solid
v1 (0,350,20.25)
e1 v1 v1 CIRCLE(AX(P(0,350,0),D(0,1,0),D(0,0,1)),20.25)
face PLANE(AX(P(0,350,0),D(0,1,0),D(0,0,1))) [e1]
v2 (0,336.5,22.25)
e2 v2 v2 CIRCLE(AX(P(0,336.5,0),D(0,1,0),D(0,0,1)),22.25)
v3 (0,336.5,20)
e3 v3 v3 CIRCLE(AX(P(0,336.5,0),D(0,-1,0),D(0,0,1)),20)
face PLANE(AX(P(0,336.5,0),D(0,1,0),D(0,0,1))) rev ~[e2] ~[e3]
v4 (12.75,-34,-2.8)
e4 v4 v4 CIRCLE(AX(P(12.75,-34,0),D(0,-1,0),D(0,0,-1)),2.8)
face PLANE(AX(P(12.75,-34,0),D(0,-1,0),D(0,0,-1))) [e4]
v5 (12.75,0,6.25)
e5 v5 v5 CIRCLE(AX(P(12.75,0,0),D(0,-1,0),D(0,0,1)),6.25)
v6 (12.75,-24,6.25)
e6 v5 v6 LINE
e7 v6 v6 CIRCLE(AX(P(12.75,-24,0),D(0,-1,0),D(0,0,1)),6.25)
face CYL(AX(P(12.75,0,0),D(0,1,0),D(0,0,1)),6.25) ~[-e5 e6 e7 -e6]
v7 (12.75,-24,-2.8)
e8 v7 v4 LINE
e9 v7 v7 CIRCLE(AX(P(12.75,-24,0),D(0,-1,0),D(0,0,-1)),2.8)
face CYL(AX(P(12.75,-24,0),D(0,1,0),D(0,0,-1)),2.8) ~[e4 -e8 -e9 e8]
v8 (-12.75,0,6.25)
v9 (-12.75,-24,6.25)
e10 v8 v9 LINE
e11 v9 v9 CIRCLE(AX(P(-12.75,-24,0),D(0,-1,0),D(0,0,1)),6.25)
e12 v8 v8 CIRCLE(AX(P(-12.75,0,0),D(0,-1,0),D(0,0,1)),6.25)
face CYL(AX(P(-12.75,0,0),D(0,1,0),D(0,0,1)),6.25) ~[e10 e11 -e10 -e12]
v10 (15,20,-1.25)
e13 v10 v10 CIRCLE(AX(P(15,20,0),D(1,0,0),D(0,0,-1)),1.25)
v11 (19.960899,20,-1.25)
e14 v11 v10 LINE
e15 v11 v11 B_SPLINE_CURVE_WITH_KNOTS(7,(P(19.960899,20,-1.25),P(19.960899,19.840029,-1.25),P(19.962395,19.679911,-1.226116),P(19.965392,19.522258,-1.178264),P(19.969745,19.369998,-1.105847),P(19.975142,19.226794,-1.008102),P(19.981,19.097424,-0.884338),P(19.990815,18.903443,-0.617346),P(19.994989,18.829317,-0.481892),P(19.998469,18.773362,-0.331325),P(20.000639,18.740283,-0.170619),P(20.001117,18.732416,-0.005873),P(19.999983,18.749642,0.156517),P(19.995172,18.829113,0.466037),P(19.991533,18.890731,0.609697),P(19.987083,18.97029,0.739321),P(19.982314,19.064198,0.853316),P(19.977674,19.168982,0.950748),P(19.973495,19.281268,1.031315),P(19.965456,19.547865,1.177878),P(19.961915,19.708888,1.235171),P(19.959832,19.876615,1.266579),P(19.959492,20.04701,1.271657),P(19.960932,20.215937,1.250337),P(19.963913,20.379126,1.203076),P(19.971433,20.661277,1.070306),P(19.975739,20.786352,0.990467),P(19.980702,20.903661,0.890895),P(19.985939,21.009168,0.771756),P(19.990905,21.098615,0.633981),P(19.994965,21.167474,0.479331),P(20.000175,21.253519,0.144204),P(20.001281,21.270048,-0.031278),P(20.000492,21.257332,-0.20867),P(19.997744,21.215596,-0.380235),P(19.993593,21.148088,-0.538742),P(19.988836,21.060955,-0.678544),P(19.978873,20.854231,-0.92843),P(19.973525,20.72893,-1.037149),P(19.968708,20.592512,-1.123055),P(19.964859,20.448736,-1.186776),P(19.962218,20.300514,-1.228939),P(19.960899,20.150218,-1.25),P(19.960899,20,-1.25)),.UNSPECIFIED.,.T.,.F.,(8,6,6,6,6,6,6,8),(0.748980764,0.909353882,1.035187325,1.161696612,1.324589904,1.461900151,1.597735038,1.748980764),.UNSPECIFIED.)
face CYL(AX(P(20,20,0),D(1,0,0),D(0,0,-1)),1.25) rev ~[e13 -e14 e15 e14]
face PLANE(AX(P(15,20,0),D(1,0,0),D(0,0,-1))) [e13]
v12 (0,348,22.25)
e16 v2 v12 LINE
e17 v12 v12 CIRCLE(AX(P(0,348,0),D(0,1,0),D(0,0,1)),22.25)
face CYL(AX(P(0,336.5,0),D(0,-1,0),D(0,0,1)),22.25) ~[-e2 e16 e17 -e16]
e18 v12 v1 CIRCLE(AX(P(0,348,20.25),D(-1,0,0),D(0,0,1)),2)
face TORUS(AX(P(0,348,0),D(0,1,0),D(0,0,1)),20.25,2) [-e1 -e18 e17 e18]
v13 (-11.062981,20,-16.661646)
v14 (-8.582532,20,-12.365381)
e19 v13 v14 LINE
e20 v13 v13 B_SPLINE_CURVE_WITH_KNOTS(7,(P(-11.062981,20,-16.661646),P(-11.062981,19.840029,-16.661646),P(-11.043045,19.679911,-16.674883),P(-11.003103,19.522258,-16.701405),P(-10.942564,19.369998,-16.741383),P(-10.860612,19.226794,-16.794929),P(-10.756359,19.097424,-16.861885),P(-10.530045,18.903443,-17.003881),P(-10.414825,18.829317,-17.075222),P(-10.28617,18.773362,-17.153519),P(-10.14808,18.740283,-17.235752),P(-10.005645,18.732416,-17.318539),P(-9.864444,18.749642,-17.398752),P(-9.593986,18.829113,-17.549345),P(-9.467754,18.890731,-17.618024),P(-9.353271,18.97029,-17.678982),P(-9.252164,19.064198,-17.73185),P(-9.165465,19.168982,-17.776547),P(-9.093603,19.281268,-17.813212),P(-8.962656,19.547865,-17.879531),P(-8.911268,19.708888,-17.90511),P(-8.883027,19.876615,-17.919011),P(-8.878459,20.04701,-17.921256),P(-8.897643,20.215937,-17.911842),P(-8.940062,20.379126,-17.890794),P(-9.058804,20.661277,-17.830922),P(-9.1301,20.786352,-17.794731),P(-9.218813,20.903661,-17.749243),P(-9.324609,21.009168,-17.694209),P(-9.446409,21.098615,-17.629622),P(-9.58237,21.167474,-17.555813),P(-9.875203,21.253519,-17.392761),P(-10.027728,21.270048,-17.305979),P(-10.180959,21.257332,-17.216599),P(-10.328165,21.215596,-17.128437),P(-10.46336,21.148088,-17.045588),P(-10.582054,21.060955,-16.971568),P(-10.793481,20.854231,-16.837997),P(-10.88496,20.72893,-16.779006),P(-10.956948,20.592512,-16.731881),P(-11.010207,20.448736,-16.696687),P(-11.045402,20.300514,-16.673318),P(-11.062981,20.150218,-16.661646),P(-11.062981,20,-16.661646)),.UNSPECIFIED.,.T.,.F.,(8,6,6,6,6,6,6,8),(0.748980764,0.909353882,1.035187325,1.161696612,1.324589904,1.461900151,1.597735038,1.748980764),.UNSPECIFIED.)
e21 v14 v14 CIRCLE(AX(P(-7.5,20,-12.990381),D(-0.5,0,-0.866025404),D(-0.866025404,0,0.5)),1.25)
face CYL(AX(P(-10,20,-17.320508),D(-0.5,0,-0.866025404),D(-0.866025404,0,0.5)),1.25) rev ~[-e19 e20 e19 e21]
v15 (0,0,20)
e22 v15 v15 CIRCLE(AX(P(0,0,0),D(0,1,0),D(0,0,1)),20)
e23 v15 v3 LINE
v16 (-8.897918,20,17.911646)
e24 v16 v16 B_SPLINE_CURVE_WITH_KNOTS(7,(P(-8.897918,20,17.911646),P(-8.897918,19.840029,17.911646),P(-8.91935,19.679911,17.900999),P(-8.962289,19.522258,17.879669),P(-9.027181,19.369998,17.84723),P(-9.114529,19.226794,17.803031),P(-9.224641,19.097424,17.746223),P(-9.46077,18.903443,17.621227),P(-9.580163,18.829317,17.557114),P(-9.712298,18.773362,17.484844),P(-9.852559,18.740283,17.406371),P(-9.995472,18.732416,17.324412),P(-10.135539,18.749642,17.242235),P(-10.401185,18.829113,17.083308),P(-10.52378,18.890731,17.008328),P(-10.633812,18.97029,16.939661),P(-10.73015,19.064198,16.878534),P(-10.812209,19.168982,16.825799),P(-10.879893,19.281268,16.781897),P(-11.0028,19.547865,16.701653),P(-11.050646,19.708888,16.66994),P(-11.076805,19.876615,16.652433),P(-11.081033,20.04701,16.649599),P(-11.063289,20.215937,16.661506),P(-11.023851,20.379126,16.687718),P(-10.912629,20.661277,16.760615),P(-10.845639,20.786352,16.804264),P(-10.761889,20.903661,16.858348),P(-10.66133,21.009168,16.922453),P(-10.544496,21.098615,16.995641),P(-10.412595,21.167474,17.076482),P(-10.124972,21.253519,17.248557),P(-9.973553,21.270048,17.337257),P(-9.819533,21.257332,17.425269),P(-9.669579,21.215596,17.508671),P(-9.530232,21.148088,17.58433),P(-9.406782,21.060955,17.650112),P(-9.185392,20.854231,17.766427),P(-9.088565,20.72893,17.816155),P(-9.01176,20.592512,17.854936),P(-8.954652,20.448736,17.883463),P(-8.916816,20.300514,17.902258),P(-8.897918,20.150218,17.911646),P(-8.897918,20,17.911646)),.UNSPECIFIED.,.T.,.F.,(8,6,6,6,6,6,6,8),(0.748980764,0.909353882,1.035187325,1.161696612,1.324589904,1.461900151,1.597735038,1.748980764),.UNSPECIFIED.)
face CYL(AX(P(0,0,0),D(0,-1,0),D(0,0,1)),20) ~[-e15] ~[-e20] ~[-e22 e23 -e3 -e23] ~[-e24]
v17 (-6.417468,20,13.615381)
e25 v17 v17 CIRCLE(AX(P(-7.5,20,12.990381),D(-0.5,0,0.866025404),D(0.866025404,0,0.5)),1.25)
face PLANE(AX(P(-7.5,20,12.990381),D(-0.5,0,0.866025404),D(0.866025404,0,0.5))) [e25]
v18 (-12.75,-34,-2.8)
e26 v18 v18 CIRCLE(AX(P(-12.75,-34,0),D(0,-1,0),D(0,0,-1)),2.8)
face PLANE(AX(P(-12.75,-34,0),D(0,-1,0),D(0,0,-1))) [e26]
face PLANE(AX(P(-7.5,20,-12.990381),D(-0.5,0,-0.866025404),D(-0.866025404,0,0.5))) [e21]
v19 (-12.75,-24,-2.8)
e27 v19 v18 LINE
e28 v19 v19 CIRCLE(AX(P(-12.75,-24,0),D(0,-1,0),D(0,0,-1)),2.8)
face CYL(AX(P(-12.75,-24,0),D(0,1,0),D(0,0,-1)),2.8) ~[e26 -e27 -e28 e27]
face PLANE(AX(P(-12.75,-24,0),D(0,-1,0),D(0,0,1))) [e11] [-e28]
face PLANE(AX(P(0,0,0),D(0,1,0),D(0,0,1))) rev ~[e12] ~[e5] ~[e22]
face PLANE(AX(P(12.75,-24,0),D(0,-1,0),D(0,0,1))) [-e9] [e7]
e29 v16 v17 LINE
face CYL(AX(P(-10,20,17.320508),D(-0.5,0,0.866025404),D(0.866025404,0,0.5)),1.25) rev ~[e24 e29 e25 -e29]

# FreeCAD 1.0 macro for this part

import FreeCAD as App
import Part
import Sketcher

V = App.Vector


def edges_at(feature, points):
    """Names of the edges that pass closest to the given points."""
    edges = feature.Shape.Edges
    near = lambda p: min(range(len(edges)), key=lambda i: edges[i].distToShape(Part.Vertex(*p))[0])
    return sorted({f"Edge{near(p) + 1}" for p in points})

doc = App.newDocument("Part")
params = doc.addObject("Spreadsheet::Sheet", "Params")
for row, (alias, value) in enumerate([
    ("sketch1_diameter", "40 mm"),
    ("pad1_length", "345 mm"),
    ("sketch2_diameter", "44.5 mm"),
    ("pad2_length", "5 mm"),
    ("pad2_length2", "8.5 mm"),
    ("fillet_radius", "2 mm"),
    ("sketch3_diameter", "2.5 mm"),
    ("pocket1_length", "5 mm"),
    ("sketch4_diameter", "12.5 mm"),
    ("pad3_length", "24 mm"),
    ("sketch5_diameter", "5.6 mm"),
    ("pad4_length", "10 mm"),
], start=1):
    params.set(f"A{row}", alias)
    params.set(f"B{row}", "=" + value)
    params.setAlias(f"B{row}", alias)

body = doc.addObject("PartDesign::Body", "Body")

# Sketch on XZ plane
sketch1 = doc.addObject("Sketcher::SketchObject", "Sketch")
body.addObject(sketch1)
sketch1.AttachmentSupport = (doc.XZ_Plane, [""])
sketch1.MapMode = "FlatFace"
sketch1.addGeometry(Part.Circle(V(0, 0, 0), V(0, 0, 1), 20), False)
sketch1.addConstraint(Sketcher.Constraint("Coincident", 0, 3, -1, 1))
sketch1.addConstraint(Sketcher.Constraint("Diameter", 0, 40.0))
sketch1.setExpression("Constraints[1]", "Params.sketch1_diameter")
pad1 = doc.addObject("PartDesign::Pad", "Pad")
body.addObject(pad1)
pad1.Profile = sketch1
pad1.setExpression("Length", "Params.pad1_length")
pad1.Reversed = True

# Sketch on XZ plane
sketch2 = doc.addObject("Sketcher::SketchObject", "Sketch001")
body.addObject(sketch2)
sketch2.AttachmentSupport = (doc.XZ_Plane, [""])
sketch2.MapMode = "FlatFace"
sketch2.AttachmentOffset = App.Placement(V(0, 0, -345), App.Rotation())
sketch2.addGeometry(Part.Circle(V(0, 0, 0), V(0, 0, 1), 22), False)
sketch2.addConstraint(Sketcher.Constraint("Coincident", 0, 3, -1, 1))
sketch2.addConstraint(Sketcher.Constraint("Diameter", 0, 44.5))
sketch2.setExpression("Constraints[1]", "Params.sketch2_diameter")
pad2 = doc.addObject("PartDesign::Pad", "Pad001")
body.addObject(pad2)
pad2.Profile = sketch2
pad2.Type = "TwoLengths"
pad2.setExpression("Length", "Params.pad2_length")
pad2.setExpression("Length2", "Params.pad2_length2")
pad2.Reversed = True
doc.recompute()

fillet = doc.addObject("PartDesign::Fillet", "Fillet")
body.addObject(fillet)
fillet.Base = (pad2, edges_at(pad2, [(0, 350, -22.25)]))
fillet.setExpression("Radius", "Params.fillet_radius")

# Sketch on YZ plane
sketch3 = doc.addObject("Sketcher::SketchObject", "Sketch002")
body.addObject(sketch3)
sketch3.AttachmentSupport = (doc.YZ_Plane, [""])
sketch3.MapMode = "FlatFace"
sketch3.AttachmentOffset = App.Placement(V(0, 0, 20), App.Rotation())
sketch3.addGeometry(Part.Circle(V(20, 0, 0), V(0, 0, 1), 1.2), False)
sketch3.addConstraint(Sketcher.Constraint("PointOnObject", 0, 3, -1))
sketch3.addConstraint(Sketcher.Constraint("Diameter", 0, 2.5))
sketch3.addConstraint(Sketcher.Constraint("DistanceX", -1, 1, 0, 3, 20.0))
sketch3.setExpression("Constraints[1]", "Params.sketch3_diameter")
pocket1 = doc.addObject("PartDesign::Pocket", "Pocket")
body.addObject(pocket1)
pocket1.Profile = sketch3
pocket1.setExpression("Length", "Params.pocket1_length")
doc.recompute()

polarpattern = doc.addObject("PartDesign::PolarPattern", "PolarPattern")
body.addObject(polarpattern)
polarpattern.Originals = [pocket1]
polarpattern.Axis = (doc.Y_Axis, [""])
polarpattern.Angle = 360
polarpattern.Occurrences = 3
body.Tip = polarpattern

# Sketch on XZ plane
sketch4 = doc.addObject("Sketcher::SketchObject", "Sketch003")
body.addObject(sketch4)
sketch4.AttachmentSupport = (doc.XZ_Plane, [""])
sketch4.MapMode = "FlatFace"
sketch4.addGeometry(Part.Circle(V(-13, 0, 0), V(0, 0, 1), 6), False)
sketch4.addGeometry(Part.Circle(V(13, 0, 0), V(0, 0, 1), 6), False)
sketch4.addConstraint(Sketcher.Constraint("Equal", 0, 1))
sketch4.addConstraint(Sketcher.Constraint("Symmetric", 0, 3, 1, 3, -1, 1))
sketch4.addConstraint(Sketcher.Constraint("PointOnObject", 0, 3, -1))
sketch4.addConstraint(Sketcher.Constraint("Diameter", 0, 12.5))
sketch4.addConstraint(Sketcher.Constraint("DistanceX", 0, 3, 1, 3, 25.5))
sketch4.setExpression("Constraints[3]", "Params.sketch4_diameter")
pad3 = doc.addObject("PartDesign::Pad", "Pad002")
body.addObject(pad3)
pad3.Profile = sketch4
pad3.setExpression("Length", "Params.pad3_length")

# Sketch on XZ plane
sketch5 = doc.addObject("Sketcher::SketchObject", "Sketch004")
body.addObject(sketch5)
sketch5.AttachmentSupport = (doc.XZ_Plane, [""])
sketch5.MapMode = "FlatFace"
sketch5.AttachmentOffset = App.Placement(V(0, 0, 24), App.Rotation())
sketch5.addGeometry(Part.Circle(V(-12.8, 0, 0), V(0, 0, 1), 2.8), False)
sketch5.addGeometry(Part.Circle(V(12.8, 0, 0), V(0, 0, 1), 2.8), False)
sketch5.addConstraint(Sketcher.Constraint("Equal", 0, 1))
sketch5.addConstraint(Sketcher.Constraint("Symmetric", 0, 3, 1, 3, -1, 1))
sketch5.addConstraint(Sketcher.Constraint("PointOnObject", 0, 3, -1))
sketch5.addConstraint(Sketcher.Constraint("Diameter", 0, 5.6))
sketch5.addConstraint(Sketcher.Constraint("DistanceX", 0, 3, 1, 3, 25.5))
sketch5.setExpression("Constraints[3]", "Params.sketch5_diameter")
pad4 = doc.addObject("PartDesign::Pad", "Pad003")
body.addObject(pad4)
pad4.Profile = sketch5
pad4.setExpression("Length", "Params.pad4_length")

doc.recompute()
